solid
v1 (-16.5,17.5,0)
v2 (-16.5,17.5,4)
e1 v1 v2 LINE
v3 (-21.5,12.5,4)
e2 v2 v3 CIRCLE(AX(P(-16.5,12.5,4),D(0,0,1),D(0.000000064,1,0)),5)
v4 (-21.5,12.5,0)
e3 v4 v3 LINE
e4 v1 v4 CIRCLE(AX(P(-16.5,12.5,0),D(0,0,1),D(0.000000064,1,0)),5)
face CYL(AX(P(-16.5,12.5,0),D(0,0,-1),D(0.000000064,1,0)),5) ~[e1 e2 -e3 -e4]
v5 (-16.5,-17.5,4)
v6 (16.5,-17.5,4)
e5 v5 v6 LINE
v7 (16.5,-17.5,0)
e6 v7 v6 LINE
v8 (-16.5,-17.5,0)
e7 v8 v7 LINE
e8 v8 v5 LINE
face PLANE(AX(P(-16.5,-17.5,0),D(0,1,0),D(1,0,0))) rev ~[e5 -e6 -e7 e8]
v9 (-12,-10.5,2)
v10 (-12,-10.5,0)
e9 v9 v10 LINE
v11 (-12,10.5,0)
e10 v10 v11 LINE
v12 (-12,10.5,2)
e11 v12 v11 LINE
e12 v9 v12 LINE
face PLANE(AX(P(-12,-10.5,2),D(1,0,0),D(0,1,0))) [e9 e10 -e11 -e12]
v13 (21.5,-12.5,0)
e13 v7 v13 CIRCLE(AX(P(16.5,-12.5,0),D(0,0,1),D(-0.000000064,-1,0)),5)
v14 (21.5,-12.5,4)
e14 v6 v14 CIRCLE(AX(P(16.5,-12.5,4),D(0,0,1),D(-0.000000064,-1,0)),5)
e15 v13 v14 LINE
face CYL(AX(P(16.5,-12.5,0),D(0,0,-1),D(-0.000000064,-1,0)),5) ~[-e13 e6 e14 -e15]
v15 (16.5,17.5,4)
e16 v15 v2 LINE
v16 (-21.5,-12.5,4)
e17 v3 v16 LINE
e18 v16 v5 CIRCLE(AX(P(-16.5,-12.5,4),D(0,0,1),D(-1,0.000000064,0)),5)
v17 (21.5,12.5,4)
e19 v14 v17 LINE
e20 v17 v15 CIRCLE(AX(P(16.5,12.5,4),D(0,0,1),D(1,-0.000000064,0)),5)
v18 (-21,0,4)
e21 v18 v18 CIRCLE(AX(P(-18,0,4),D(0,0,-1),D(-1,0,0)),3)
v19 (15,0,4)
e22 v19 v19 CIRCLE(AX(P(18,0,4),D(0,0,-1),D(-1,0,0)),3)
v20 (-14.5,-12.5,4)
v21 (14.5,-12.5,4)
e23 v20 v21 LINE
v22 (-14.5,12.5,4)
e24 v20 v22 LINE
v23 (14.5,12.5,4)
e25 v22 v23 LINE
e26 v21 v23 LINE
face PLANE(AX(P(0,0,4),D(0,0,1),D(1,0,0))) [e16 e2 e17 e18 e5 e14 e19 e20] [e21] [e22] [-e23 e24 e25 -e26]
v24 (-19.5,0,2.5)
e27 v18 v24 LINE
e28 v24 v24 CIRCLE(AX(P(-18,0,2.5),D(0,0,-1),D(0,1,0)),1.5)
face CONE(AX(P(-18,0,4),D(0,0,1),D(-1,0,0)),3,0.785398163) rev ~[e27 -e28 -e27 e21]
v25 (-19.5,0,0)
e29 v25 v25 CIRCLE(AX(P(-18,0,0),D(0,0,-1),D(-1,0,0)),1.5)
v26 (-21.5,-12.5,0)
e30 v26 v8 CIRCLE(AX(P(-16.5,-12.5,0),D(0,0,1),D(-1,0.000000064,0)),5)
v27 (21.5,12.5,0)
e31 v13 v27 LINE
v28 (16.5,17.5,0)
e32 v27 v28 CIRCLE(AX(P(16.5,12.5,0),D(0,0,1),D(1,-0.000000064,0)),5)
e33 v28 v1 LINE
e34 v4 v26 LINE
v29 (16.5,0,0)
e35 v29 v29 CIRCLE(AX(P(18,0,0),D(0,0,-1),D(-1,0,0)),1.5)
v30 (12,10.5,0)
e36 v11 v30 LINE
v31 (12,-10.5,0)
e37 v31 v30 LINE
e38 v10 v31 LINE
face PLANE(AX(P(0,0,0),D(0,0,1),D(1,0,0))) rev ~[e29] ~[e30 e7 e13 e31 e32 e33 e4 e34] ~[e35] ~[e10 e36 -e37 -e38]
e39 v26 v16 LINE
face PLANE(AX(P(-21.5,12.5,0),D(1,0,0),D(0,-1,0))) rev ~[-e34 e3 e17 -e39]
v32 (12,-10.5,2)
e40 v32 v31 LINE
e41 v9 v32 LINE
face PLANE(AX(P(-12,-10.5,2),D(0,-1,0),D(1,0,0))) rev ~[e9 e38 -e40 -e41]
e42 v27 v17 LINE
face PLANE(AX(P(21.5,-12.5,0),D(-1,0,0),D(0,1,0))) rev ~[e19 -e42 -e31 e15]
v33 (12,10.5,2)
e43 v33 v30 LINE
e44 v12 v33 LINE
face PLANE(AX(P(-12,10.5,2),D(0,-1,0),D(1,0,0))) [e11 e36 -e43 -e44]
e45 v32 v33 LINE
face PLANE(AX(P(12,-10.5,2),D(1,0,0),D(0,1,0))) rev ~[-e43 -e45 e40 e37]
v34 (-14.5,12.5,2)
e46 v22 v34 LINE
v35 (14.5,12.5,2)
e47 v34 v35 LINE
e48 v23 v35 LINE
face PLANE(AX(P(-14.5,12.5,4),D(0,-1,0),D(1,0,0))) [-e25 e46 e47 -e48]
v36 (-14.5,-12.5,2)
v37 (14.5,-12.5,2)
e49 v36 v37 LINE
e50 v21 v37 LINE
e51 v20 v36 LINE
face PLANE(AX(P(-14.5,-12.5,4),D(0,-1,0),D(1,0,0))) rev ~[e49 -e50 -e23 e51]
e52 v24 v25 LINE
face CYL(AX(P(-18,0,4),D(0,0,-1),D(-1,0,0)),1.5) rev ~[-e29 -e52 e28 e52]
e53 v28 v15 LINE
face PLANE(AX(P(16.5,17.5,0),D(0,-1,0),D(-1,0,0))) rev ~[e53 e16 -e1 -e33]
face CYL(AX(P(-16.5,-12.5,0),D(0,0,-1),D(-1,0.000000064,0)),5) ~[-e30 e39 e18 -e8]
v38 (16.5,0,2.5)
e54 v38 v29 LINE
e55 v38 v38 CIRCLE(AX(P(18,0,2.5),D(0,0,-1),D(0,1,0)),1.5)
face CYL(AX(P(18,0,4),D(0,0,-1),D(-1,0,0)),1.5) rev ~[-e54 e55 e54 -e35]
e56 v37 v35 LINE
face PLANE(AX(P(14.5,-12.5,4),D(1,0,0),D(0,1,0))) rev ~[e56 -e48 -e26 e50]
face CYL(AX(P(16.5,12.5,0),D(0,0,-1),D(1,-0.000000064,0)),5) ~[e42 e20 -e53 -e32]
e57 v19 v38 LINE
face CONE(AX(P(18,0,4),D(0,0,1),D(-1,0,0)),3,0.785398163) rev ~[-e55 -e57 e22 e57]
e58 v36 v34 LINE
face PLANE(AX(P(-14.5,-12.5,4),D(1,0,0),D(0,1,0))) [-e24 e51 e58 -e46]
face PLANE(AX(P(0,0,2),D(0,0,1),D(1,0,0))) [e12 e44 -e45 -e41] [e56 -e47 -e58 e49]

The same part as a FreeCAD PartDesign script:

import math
import FreeCAD as App
import Part
import Sketcher

V = App.Vector


def add_polygon(sketch, points):
    """Adds a closed chain of lines whose ends are joined by coincident constraints."""
    first, n = sketch.GeometryCount, len(points)
    for a, b in zip(points, points[1:] + points[:1]):
        sketch.addGeometry(Part.LineSegment(App.Vector(*a, 0), App.Vector(*b, 0)), False)
    for i in range(n):
        sketch.addConstraint(Sketcher.Constraint("Coincident", first + i, 2, first + (i + 1) % n, 1))

doc = App.newDocument("Part")
body = doc.addObject("PartDesign::Body", "Body")

# Sketch on XY plane
sketch1 = body.newObject("Sketcher::SketchObject", "Sketch")
sketch1.AttachmentSupport = (doc.getObject("XY_Plane"), [""])
sketch1.MapMode = "FlatFace"
sketch1.addGeometry([
    Part.LineSegment(V(-16.5, -17.5, 0), V(16.5, -17.5, 0)),  # 0
    Part.ArcOfCircle(Part.Circle(V(16.5, -12.5, 0), V(0, 0, 1), 5), math.radians(-90.000004), math.radians(0.000004)),  # 1
    Part.LineSegment(V(21.5, -12.5, 0), V(21.5, 12.5, 0)),  # 2
    Part.ArcOfCircle(Part.Circle(V(16.5, 12.5, 0), V(0, 0, 1), 5), math.radians(-0.000004), math.radians(90.000004)),  # 3
    Part.LineSegment(V(16.5, 17.5, 0), V(-16.5, 17.5, 0)),  # 4
    Part.ArcOfCircle(Part.Circle(V(-16.5, 12.5, 0), V(0, 0, 1), 5), math.radians(89.999996), math.radians(180.000004)),  # 5
    Part.LineSegment(V(-21.5, 12.5, 0), V(-21.5, -12.5, 0)),  # 6
    Part.ArcOfCircle(Part.Circle(V(-16.5, -12.5, 0), V(0, 0, 1), 5), math.radians(179.999996), math.radians(270.000004)),  # 7
], False)
sketch1.addConstraint([
    Sketcher.Constraint("Tangent", 0, 2, 1, 1),
    Sketcher.Constraint("Tangent", 1, 2, 2, 1),
    Sketcher.Constraint("Tangent", 2, 2, 3, 1),
    Sketcher.Constraint("Tangent", 3, 2, 4, 1),
    Sketcher.Constraint("Tangent", 4, 2, 5, 1),
    Sketcher.Constraint("Tangent", 5, 2, 6, 1),
    Sketcher.Constraint("Tangent", 6, 2, 7, 1),
    Sketcher.Constraint("Tangent", 7, 2, 0, 1),
    Sketcher.Constraint("Horizontal", 0),
    Sketcher.Constraint("Vertical", 2),
    Sketcher.Constraint("Horizontal", 4),
    Sketcher.Constraint("Vertical", 6),
    Sketcher.Constraint("Equal", 1, 3),
    Sketcher.Constraint("Equal", 3, 5),
    Sketcher.Constraint("Equal", 5, 7),
    Sketcher.Constraint("Symmetric", 1, 3, 5, 3, -1, 1),
    Sketcher.Constraint("Radius", 1, 5.0),
    Sketcher.Constraint("DistanceX", 0, 1, 0, 2, 33.0),
    Sketcher.Constraint("DistanceY", 2, 1, 2, 2, 25.0),
])
pad1 = body.newObject("PartDesign::Pad", "Pad")
pad1.Profile = sketch1
pad1.Length = 4

# Sketch on XY plane
sketch2 = body.newObject("Sketcher::SketchObject", "Sketch001")
sketch2.AttachmentSupport = (doc.getObject("XY_Plane"), [""])
sketch2.MapMode = "FlatFace"
sketch2.AttachmentOffset = App.Placement(V(0, 0, 4), App.Rotation())
add_polygon(sketch2, [(-14.5, 12.5), (-14.5, -12.5), (14.5, -12.5), (14.5, 12.5)])  # lines 0-3
sketch2.addConstraint([
    Sketcher.Constraint("Vertical", 0),
    Sketcher.Constraint("Horizontal", 1),
    Sketcher.Constraint("Vertical", 2),
    Sketcher.Constraint("Horizontal", 3),
    Sketcher.Constraint("Symmetric", 0, 2, 2, 2, -1, 1),
    Sketcher.Constraint("DistanceX", 1, 1, 1, 2, 29.0),
    Sketcher.Constraint("DistanceY", 0, 2, 0, 1, 25.0),
])
pocket1 = body.newObject("PartDesign::Pocket", "Pocket")
pocket1.Profile = sketch2
pocket1.Length = 2

# Sketch on XY plane
sketch3 = body.newObject("Sketcher::SketchObject", "Sketch002")
sketch3.AttachmentSupport = (doc.getObject("XY_Plane"), [""])
sketch3.MapMode = "FlatFace"
sketch3.AttachmentOffset = App.Placement(V(0, 0, 2), App.Rotation())
add_polygon(sketch3, [(-12, 10.5), (-12, -10.5), (12, -10.5), (12, 10.5)])  # lines 0-3
sketch3.addConstraint([
    Sketcher.Constraint("Vertical", 0),
    Sketcher.Constraint("Horizontal", 1),
    Sketcher.Constraint("Vertical", 2),
    Sketcher.Constraint("Horizontal", 3),
    Sketcher.Constraint("Symmetric", 0, 2, 2, 2, -1, 1),
    Sketcher.Constraint("DistanceX", 1, 1, 1, 2, 24.0),
    Sketcher.Constraint("DistanceY", 0, 2, 0, 1, 21.0),
])
pocket2 = body.newObject("PartDesign::Pocket", "Pocket001")
pocket2.Profile = sketch3
pocket2.Length = 2

# Sketch on XY plane
sketch4 = body.newObject("Sketcher::SketchObject", "Sketch003")
sketch4.AttachmentSupport = (doc.getObject("XY_Plane"), [""])
sketch4.MapMode = "FlatFace"
sketch4.AttachmentOffset = App.Placement(V(0, 0, 4), App.Rotation())
sketch4.addGeometry(Part.Circle(V(-18, 0, 0), V(0, 0, 1), 1.5), False)
sketch4.addConstraint([
    Sketcher.Constraint("PointOnObject", 0, 3, -1),
    Sketcher.Constraint("Diameter", 0, 3.0),
    Sketcher.Constraint("DistanceX", 0, 3, -1, 1, 18.0),
])
doc.recompute()
hole = body.newObject("PartDesign::Hole", "Hole")
hole.Profile = sketch4
hole.ThreadType = "None"
hole.Diameter = 3
hole.DepthType = "ThroughAll"
hole.HoleCutType = "Countersink"
hole.HoleCutDiameter = 6
hole.HoleCutCountersinkAngle = 90

# Sketch on XY plane
sketch5 = body.newObject("Sketcher::SketchObject", "Sketch004")
sketch5.AttachmentSupport = (doc.getObject("XY_Plane"), [""])
sketch5.MapMode = "FlatFace"
sketch5.AttachmentOffset = App.Placement(V(0, 0, 4), App.Rotation())
sketch5.addGeometry(Part.Circle(V(18, 0, 0), V(0, 0, 1), 1.5), False)
sketch5.addConstraint([
    Sketcher.Constraint("PointOnObject", 0, 3, -1),
    Sketcher.Constraint("Diameter", 0, 3.0),
    Sketcher.Constraint("DistanceX", -1, 1, 0, 3, 18.0),
])
doc.recompute()
hole2 = body.newObject("PartDesign::Hole", "Hole001")
hole2.Profile = sketch5
hole2.ThreadType = "None"
hole2.Diameter = 3
hole2.DepthType = "ThroughAll"
hole2.HoleCutType = "Countersink"
hole2.HoleCutDiameter = 6
hole2.HoleCutCountersinkAngle = 90

doc.recompute()
